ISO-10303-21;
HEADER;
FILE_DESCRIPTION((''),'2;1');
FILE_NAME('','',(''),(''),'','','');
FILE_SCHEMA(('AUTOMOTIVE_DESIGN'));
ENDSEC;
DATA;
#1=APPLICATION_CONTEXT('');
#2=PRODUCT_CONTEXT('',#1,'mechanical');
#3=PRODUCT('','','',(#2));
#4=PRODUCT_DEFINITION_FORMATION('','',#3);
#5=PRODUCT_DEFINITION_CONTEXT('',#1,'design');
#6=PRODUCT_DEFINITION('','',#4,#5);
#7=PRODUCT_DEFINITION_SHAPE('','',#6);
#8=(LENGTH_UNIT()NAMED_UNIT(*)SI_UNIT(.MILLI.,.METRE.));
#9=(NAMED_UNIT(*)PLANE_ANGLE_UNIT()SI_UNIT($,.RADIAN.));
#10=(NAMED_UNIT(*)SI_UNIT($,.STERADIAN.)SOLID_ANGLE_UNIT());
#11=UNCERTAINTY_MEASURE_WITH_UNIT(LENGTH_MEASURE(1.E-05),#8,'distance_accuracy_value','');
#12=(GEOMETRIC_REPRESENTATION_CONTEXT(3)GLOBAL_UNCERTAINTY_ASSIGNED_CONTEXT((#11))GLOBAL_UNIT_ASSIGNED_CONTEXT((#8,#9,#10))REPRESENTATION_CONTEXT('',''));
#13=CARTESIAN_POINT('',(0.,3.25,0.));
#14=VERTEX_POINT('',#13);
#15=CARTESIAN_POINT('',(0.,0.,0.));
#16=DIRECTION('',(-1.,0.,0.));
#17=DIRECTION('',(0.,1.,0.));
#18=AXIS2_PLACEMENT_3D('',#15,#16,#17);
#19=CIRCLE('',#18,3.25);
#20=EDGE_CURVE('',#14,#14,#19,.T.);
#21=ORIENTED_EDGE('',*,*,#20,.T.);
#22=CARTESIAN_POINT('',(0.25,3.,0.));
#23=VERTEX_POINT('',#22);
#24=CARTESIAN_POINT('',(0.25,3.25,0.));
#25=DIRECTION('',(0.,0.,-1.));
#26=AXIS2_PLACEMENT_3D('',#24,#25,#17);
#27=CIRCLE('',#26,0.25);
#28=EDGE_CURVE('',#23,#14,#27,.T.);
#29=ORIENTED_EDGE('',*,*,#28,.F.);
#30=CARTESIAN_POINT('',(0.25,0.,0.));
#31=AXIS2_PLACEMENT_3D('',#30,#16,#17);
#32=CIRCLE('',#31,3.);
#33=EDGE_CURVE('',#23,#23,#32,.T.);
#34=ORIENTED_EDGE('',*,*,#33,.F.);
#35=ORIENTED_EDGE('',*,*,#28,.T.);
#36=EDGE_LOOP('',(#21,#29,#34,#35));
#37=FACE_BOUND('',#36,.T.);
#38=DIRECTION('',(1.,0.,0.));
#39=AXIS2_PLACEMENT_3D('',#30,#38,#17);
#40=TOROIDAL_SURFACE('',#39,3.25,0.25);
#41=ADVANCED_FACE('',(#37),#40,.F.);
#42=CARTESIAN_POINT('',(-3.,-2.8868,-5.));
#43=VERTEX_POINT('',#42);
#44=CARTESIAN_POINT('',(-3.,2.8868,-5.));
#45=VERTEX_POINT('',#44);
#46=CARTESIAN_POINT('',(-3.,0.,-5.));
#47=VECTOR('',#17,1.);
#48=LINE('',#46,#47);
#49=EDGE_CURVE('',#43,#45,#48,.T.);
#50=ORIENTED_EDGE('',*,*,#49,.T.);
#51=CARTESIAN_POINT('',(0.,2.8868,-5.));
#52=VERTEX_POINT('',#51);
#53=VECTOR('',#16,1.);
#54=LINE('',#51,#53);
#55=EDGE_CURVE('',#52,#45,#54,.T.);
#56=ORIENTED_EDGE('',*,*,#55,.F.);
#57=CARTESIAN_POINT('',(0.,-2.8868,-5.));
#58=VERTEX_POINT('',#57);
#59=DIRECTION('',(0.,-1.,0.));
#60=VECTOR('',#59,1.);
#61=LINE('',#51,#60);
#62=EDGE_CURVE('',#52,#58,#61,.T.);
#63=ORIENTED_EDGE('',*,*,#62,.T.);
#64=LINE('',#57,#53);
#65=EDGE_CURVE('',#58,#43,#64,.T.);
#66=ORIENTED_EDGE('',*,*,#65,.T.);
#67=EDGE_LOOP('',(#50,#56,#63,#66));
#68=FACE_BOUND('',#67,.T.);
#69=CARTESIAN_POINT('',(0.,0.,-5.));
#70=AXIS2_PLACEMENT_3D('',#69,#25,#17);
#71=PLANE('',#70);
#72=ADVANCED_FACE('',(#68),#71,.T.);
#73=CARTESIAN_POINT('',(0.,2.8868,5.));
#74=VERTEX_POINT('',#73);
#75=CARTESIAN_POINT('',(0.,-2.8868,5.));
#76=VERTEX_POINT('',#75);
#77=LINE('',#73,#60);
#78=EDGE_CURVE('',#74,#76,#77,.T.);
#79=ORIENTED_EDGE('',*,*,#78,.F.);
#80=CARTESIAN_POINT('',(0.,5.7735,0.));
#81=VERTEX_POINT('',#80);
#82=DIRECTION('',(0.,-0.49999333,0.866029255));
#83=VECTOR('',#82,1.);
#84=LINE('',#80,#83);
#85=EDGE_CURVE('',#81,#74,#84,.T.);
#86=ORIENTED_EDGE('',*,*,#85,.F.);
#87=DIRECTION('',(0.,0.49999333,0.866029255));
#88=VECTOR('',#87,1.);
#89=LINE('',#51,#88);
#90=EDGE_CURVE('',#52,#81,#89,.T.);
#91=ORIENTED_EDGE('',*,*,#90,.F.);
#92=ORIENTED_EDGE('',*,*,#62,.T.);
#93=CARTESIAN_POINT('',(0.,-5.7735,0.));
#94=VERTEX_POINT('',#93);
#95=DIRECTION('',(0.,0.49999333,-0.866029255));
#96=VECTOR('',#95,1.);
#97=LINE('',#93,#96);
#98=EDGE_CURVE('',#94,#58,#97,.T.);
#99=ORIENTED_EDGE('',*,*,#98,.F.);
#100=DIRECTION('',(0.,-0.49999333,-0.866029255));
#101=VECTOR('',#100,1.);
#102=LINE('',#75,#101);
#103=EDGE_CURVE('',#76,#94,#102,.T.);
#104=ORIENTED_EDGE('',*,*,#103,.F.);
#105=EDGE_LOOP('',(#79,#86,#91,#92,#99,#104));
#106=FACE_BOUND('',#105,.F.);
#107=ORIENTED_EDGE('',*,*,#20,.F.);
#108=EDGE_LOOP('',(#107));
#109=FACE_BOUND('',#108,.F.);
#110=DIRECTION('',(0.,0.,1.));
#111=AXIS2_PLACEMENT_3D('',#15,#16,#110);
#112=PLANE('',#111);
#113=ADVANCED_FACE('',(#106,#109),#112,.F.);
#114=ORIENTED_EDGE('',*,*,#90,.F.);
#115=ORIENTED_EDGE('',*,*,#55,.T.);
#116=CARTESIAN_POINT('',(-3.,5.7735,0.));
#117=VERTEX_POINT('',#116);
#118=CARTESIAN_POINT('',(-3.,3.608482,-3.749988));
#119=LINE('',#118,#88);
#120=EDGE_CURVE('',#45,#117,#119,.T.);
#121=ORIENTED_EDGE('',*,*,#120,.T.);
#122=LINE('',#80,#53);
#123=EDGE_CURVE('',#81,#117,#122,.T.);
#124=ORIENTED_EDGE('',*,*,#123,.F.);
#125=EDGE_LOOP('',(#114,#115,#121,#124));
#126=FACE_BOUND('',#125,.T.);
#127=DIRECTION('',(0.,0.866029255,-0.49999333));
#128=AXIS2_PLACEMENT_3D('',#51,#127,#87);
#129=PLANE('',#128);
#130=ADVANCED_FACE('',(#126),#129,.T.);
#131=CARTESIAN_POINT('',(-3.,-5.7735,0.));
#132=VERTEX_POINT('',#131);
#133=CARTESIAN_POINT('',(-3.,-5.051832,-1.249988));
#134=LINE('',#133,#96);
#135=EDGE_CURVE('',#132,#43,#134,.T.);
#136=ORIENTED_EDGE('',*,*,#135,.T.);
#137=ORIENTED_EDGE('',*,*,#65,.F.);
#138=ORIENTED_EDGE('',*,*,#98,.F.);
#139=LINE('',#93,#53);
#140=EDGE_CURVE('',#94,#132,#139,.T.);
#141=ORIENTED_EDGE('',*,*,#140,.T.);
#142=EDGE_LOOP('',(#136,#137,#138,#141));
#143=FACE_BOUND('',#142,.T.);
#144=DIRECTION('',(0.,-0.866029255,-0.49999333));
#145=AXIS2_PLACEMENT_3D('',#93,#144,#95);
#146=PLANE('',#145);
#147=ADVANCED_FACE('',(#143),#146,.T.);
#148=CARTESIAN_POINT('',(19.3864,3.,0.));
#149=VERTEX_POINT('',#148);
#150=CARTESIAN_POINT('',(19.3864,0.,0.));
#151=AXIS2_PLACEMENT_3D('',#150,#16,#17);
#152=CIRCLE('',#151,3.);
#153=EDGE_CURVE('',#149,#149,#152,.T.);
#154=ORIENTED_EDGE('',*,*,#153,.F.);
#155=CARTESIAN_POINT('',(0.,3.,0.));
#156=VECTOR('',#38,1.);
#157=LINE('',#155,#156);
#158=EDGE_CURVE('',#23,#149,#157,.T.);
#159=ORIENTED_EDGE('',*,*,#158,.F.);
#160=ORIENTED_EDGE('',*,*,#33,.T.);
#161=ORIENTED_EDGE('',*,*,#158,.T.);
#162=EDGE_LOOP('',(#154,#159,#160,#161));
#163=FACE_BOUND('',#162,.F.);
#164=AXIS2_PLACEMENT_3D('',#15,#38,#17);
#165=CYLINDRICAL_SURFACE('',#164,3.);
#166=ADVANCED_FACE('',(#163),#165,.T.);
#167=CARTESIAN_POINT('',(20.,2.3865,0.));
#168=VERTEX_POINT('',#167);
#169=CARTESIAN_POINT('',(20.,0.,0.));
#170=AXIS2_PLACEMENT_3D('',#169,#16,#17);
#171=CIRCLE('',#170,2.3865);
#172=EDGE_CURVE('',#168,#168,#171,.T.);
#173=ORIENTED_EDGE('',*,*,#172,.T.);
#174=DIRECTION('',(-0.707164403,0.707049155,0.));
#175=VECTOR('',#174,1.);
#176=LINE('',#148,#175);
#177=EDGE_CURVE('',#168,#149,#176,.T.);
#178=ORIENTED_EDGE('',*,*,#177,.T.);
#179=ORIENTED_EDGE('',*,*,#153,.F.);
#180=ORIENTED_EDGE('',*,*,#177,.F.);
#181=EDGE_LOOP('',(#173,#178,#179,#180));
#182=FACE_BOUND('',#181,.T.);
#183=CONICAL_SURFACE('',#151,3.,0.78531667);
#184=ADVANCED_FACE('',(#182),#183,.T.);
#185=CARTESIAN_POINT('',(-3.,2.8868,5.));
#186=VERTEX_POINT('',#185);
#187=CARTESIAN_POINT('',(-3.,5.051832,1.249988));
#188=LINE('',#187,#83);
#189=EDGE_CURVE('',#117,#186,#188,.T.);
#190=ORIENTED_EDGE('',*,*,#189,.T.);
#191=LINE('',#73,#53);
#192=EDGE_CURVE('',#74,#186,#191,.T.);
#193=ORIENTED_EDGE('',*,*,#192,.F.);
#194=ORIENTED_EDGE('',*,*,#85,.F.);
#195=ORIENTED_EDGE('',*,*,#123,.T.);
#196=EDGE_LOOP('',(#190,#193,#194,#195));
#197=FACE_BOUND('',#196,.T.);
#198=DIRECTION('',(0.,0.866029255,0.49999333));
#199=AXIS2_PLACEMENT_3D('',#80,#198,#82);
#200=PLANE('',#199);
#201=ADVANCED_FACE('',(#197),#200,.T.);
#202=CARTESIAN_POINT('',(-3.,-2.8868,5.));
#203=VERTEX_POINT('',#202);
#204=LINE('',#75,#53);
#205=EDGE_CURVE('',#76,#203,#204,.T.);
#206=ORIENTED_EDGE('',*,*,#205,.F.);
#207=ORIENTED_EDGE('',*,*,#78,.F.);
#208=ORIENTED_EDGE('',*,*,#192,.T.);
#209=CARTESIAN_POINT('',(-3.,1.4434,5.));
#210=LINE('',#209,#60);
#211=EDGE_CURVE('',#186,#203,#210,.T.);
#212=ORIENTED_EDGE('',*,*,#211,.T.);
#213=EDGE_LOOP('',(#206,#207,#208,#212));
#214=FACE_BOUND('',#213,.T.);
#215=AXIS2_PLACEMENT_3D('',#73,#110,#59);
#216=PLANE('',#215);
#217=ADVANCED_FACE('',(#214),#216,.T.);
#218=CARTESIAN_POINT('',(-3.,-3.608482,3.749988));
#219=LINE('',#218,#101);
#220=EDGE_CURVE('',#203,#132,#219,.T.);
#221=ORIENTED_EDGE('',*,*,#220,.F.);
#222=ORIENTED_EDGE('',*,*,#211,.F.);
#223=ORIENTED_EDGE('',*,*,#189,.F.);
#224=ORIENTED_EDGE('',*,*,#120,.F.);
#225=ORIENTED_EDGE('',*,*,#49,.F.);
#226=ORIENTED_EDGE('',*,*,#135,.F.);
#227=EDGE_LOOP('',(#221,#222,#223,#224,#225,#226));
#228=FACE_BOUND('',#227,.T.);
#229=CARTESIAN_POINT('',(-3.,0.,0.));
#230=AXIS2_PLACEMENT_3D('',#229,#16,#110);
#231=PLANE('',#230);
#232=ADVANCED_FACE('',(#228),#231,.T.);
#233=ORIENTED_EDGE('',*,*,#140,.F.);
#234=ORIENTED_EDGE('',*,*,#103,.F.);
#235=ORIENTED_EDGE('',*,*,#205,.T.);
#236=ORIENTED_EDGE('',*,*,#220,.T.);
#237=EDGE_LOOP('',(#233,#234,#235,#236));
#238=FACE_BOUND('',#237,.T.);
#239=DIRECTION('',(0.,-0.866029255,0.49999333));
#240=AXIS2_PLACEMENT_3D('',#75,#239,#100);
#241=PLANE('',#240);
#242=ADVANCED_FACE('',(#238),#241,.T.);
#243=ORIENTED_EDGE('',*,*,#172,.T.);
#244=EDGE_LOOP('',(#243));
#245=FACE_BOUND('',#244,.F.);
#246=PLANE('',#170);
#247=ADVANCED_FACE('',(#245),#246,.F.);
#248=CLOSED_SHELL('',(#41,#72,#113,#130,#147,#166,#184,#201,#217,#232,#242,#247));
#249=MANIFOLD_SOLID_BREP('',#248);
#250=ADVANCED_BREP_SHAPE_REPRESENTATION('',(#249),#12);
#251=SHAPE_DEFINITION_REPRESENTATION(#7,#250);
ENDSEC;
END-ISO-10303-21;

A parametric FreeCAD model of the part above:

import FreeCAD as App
import Part
import Sketcher

V = App.Vector
Q = App.Units.Quantity


def edges_at(feature, points):
    """Names of the edges that pass closest to the given points."""
    edges = feature.Shape.Edges
    near = lambda p: min(range(len(edges)), key=lambda i: edges[i].distToShape(Part.Vertex(*p))[0])
    return sorted({f"Edge{near(p) + 1}" for p in points})

doc = App.newDocument("Part")
body = doc.addObject("PartDesign::Body", "Body")

sketch1 = doc.addObject("Sketcher::SketchObject", "Sketch")
body.addObject(sketch1)
sketch1.AttachmentSupport = (doc.XY_Plane, [""])
sketch1.MapMode = "FlatFace"
sketch1.addGeometry(Part.LineSegment(V(20, 3, 0), V(0, 3, 0)), False)
sketch1.addGeometry(Part.LineSegment(V(0, 3, 0), V(0, 0, 0)), False)
sketch1.addGeometry(Part.LineSegment(V(0, 0, 0), V(20, 0, 0)), False)
sketch1.addGeometry(Part.LineSegment(V(20, 0, 0), V(20, 3, 0)), False)
sketch1.addConstraint(Sketcher.Constraint("Coincident", 0, 2, 1, 1))
sketch1.addConstraint(Sketcher.Constraint("Coincident", 1, 2, 2, 1))
sketch1.addConstraint(Sketcher.Constraint("Coincident", 2, 2, 3, 1))
sketch1.addConstraint(Sketcher.Constraint("Coincident", 3, 2, 0, 1))
sketch1.addConstraint(Sketcher.Constraint("Horizontal", 0))
sketch1.addConstraint(Sketcher.Constraint("Vertical", 1))
sketch1.addConstraint(Sketcher.Constraint("Horizontal", 2))
sketch1.addConstraint(Sketcher.Constraint("Vertical", 3))
sketch1.addConstraint(Sketcher.Constraint("Coincident", 1, 2, -1, 1))
sketch1.addConstraint(Sketcher.Constraint("DistanceX", 0, 2, 0, 1, 20.0))
sketch1.addConstraint(Sketcher.Constraint("DistanceY", 1, 2, 1, 1, 3.0))
revolution = doc.addObject("PartDesign::Revolution", "Revolution")
body.addObject(revolution)
revolution.Profile = sketch1
revolution.ReferenceAxis = (sketch1, ["H_Axis"])
revolution.Angle = 360

sketch2 = doc.addObject("Sketcher::SketchObject", "Sketch001")
body.addObject(sketch2)
sketch2.AttachmentSupport = (doc.YZ_Plane, [""])
sketch2.MapMode = "FlatFace"
sketch2.addGeometry(Part.LineSegment(V(3, -5, 0), V(-3, -5, 0)), False)
sketch2.addGeometry(Part.LineSegment(V(-3, -5, 0), V(-6, 0, 0)), False)
sketch2.addGeometry(Part.LineSegment(V(-6, 0, 0), V(-3, 5, 0)), False)
sketch2.addGeometry(Part.LineSegment(V(-3, 5, 0), V(3, 5, 0)), False)
sketch2.addGeometry(Part.LineSegment(V(3, 5, 0), V(6, 0, 0)), False)
sketch2.addGeometry(Part.LineSegment(V(6, 0, 0), V(3, -5, 0)), False)
sketch2.addConstraint(Sketcher.Constraint("Coincident", 0, 2, 1, 1))
sketch2.addConstraint(Sketcher.Constraint("Coincident", 1, 2, 2, 1))
sketch2.addConstraint(Sketcher.Constraint("Coincident", 2, 2, 3, 1))
sketch2.addConstraint(Sketcher.Constraint("Coincident", 3, 2, 4, 1))
sketch2.addConstraint(Sketcher.Constraint("Coincident", 4, 2, 5, 1))
sketch2.addConstraint(Sketcher.Constraint("Coincident", 5, 2, 0, 1))
sketch2.addConstraint(Sketcher.Constraint("Horizontal", 0))
sketch2.addConstraint(Sketcher.Constraint("Horizontal", 3))
sketch2.addConstraint(Sketcher.Constraint("Symmetric", 0, 2, 3, 2, -1, 1))
sketch2.addConstraint(Sketcher.Constraint("Symmetric", 1, 2, 4, 2, -1, 1))
sketch2.addConstraint(Sketcher.Constraint("PointOnObject", 1, 2, -1))
sketch2.addConstraint(Sketcher.Constraint("Parallel", 2, 5))
sketch2.addConstraint(Sketcher.Constraint("Vertical", 0, 2, 2, 2))
sketch2.addConstraint(Sketcher.Constraint("DistanceY", 0, 2, 2, 2, 10.0))
sketch2.addConstraint(Sketcher.Constraint("Angle", 1, Q("119.9996 deg")))
sketch2.addConstraint(Sketcher.Constraint("DistanceX", 0, 2, 0, 1, 5.7736))
pad1 = doc.addObject("PartDesign::Pad", "Pad")
body.addObject(pad1)
pad1.Profile = sketch2
pad1.Length = 4
pad1.Reversed = True

sketch3 = doc.addObject("Sketcher::SketchObject", "Sketch002")
body.addObject(sketch3)
sketch3.AttachmentSupport = (doc.XY_Plane, [""])
sketch3.MapMode = "FlatFace"
sketch3.addGeometry(Part.LineSegment(V(-4, 5, 0), V(-3.4, 6, 0)), False)
sketch3.addGeometry(Part.LineSegment(V(-3.4, 6, 0), V(-4, 6, 0)), False)
sketch3.addGeometry(Part.LineSegment(V(-4, 6, 0), V(-4, 5, 0)), False)
sketch3.addConstraint(Sketcher.Constraint("Coincident", 0, 2, 1, 1))
sketch3.addConstraint(Sketcher.Constraint("Coincident", 1, 2, 2, 1))
sketch3.addConstraint(Sketcher.Constraint("Coincident", 2, 2, 0, 1))
sketch3.addConstraint(Sketcher.Constraint("Horizontal", 1))
sketch3.addConstraint(Sketcher.Constraint("Vertical", 2))
sketch3.addConstraint(Sketcher.Constraint("DistanceX", 1, 2, -1, 1, 4.0))
sketch3.addConstraint(Sketcher.Constraint("DistanceY", 2, 2, 2, 1, 1.0))
sketch3.addConstraint(Sketcher.Constraint("DistanceY", -1, 1, 0, 2, 6.0))
sketch3.addConstraint(Sketcher.Constraint("DistanceX", 1, 2, 1, 1, 0.5774))
groove = doc.addObject("PartDesign::Groove", "Groove")
body.addObject(groove)
groove.Profile = sketch3
groove.ReferenceAxis = (sketch3, ["H_Axis"])
groove.Angle = 360
doc.recompute()

chamfer = doc.addObject("PartDesign::Chamfer", "Chamfer")
body.addObject(chamfer)
chamfer.Base = (groove, edges_at(groove, [(20, -3, 0)]))
chamfer.ChamferType = "Two distances"
chamfer.Size = 0.6135
chamfer.Size2 = 0.6136
doc.recompute()

fillet = doc.addObject("PartDesign::Fillet", "Fillet")
body.addObject(fillet)
fillet.Base = (chamfer, edges_at(chamfer, [(0, -3, 0)]))
fillet.Radius = 0.25

sketch4 = doc.addObject("Sketcher::SketchObject", "Sketch003")
body.addObject(sketch4)
sketch4.AttachmentSupport = (doc.YZ_Plane, [""])
sketch4.MapMode = "FlatFace"
sketch4.AttachmentOffset = App.Placement(V(0, 0, -4), App.Rotation())
sketch4.addGeometry(Part.Circle(V(0, 0, 0), V(0, 0, 1), 7), False)
sketch4.addConstraint(Sketcher.Constraint("Coincident", 0, 3, -1, 1))
sketch4.addConstraint(Sketcher.Constraint("Diameter", 0, 13.2288))
pocket1 = doc.addObject("PartDesign::Pocket", "Pocket")
body.addObject(pocket1)
pocket1.Profile = sketch4
pocket1.Length = 1
pocket1.Reversed = True

doc.recompute()
